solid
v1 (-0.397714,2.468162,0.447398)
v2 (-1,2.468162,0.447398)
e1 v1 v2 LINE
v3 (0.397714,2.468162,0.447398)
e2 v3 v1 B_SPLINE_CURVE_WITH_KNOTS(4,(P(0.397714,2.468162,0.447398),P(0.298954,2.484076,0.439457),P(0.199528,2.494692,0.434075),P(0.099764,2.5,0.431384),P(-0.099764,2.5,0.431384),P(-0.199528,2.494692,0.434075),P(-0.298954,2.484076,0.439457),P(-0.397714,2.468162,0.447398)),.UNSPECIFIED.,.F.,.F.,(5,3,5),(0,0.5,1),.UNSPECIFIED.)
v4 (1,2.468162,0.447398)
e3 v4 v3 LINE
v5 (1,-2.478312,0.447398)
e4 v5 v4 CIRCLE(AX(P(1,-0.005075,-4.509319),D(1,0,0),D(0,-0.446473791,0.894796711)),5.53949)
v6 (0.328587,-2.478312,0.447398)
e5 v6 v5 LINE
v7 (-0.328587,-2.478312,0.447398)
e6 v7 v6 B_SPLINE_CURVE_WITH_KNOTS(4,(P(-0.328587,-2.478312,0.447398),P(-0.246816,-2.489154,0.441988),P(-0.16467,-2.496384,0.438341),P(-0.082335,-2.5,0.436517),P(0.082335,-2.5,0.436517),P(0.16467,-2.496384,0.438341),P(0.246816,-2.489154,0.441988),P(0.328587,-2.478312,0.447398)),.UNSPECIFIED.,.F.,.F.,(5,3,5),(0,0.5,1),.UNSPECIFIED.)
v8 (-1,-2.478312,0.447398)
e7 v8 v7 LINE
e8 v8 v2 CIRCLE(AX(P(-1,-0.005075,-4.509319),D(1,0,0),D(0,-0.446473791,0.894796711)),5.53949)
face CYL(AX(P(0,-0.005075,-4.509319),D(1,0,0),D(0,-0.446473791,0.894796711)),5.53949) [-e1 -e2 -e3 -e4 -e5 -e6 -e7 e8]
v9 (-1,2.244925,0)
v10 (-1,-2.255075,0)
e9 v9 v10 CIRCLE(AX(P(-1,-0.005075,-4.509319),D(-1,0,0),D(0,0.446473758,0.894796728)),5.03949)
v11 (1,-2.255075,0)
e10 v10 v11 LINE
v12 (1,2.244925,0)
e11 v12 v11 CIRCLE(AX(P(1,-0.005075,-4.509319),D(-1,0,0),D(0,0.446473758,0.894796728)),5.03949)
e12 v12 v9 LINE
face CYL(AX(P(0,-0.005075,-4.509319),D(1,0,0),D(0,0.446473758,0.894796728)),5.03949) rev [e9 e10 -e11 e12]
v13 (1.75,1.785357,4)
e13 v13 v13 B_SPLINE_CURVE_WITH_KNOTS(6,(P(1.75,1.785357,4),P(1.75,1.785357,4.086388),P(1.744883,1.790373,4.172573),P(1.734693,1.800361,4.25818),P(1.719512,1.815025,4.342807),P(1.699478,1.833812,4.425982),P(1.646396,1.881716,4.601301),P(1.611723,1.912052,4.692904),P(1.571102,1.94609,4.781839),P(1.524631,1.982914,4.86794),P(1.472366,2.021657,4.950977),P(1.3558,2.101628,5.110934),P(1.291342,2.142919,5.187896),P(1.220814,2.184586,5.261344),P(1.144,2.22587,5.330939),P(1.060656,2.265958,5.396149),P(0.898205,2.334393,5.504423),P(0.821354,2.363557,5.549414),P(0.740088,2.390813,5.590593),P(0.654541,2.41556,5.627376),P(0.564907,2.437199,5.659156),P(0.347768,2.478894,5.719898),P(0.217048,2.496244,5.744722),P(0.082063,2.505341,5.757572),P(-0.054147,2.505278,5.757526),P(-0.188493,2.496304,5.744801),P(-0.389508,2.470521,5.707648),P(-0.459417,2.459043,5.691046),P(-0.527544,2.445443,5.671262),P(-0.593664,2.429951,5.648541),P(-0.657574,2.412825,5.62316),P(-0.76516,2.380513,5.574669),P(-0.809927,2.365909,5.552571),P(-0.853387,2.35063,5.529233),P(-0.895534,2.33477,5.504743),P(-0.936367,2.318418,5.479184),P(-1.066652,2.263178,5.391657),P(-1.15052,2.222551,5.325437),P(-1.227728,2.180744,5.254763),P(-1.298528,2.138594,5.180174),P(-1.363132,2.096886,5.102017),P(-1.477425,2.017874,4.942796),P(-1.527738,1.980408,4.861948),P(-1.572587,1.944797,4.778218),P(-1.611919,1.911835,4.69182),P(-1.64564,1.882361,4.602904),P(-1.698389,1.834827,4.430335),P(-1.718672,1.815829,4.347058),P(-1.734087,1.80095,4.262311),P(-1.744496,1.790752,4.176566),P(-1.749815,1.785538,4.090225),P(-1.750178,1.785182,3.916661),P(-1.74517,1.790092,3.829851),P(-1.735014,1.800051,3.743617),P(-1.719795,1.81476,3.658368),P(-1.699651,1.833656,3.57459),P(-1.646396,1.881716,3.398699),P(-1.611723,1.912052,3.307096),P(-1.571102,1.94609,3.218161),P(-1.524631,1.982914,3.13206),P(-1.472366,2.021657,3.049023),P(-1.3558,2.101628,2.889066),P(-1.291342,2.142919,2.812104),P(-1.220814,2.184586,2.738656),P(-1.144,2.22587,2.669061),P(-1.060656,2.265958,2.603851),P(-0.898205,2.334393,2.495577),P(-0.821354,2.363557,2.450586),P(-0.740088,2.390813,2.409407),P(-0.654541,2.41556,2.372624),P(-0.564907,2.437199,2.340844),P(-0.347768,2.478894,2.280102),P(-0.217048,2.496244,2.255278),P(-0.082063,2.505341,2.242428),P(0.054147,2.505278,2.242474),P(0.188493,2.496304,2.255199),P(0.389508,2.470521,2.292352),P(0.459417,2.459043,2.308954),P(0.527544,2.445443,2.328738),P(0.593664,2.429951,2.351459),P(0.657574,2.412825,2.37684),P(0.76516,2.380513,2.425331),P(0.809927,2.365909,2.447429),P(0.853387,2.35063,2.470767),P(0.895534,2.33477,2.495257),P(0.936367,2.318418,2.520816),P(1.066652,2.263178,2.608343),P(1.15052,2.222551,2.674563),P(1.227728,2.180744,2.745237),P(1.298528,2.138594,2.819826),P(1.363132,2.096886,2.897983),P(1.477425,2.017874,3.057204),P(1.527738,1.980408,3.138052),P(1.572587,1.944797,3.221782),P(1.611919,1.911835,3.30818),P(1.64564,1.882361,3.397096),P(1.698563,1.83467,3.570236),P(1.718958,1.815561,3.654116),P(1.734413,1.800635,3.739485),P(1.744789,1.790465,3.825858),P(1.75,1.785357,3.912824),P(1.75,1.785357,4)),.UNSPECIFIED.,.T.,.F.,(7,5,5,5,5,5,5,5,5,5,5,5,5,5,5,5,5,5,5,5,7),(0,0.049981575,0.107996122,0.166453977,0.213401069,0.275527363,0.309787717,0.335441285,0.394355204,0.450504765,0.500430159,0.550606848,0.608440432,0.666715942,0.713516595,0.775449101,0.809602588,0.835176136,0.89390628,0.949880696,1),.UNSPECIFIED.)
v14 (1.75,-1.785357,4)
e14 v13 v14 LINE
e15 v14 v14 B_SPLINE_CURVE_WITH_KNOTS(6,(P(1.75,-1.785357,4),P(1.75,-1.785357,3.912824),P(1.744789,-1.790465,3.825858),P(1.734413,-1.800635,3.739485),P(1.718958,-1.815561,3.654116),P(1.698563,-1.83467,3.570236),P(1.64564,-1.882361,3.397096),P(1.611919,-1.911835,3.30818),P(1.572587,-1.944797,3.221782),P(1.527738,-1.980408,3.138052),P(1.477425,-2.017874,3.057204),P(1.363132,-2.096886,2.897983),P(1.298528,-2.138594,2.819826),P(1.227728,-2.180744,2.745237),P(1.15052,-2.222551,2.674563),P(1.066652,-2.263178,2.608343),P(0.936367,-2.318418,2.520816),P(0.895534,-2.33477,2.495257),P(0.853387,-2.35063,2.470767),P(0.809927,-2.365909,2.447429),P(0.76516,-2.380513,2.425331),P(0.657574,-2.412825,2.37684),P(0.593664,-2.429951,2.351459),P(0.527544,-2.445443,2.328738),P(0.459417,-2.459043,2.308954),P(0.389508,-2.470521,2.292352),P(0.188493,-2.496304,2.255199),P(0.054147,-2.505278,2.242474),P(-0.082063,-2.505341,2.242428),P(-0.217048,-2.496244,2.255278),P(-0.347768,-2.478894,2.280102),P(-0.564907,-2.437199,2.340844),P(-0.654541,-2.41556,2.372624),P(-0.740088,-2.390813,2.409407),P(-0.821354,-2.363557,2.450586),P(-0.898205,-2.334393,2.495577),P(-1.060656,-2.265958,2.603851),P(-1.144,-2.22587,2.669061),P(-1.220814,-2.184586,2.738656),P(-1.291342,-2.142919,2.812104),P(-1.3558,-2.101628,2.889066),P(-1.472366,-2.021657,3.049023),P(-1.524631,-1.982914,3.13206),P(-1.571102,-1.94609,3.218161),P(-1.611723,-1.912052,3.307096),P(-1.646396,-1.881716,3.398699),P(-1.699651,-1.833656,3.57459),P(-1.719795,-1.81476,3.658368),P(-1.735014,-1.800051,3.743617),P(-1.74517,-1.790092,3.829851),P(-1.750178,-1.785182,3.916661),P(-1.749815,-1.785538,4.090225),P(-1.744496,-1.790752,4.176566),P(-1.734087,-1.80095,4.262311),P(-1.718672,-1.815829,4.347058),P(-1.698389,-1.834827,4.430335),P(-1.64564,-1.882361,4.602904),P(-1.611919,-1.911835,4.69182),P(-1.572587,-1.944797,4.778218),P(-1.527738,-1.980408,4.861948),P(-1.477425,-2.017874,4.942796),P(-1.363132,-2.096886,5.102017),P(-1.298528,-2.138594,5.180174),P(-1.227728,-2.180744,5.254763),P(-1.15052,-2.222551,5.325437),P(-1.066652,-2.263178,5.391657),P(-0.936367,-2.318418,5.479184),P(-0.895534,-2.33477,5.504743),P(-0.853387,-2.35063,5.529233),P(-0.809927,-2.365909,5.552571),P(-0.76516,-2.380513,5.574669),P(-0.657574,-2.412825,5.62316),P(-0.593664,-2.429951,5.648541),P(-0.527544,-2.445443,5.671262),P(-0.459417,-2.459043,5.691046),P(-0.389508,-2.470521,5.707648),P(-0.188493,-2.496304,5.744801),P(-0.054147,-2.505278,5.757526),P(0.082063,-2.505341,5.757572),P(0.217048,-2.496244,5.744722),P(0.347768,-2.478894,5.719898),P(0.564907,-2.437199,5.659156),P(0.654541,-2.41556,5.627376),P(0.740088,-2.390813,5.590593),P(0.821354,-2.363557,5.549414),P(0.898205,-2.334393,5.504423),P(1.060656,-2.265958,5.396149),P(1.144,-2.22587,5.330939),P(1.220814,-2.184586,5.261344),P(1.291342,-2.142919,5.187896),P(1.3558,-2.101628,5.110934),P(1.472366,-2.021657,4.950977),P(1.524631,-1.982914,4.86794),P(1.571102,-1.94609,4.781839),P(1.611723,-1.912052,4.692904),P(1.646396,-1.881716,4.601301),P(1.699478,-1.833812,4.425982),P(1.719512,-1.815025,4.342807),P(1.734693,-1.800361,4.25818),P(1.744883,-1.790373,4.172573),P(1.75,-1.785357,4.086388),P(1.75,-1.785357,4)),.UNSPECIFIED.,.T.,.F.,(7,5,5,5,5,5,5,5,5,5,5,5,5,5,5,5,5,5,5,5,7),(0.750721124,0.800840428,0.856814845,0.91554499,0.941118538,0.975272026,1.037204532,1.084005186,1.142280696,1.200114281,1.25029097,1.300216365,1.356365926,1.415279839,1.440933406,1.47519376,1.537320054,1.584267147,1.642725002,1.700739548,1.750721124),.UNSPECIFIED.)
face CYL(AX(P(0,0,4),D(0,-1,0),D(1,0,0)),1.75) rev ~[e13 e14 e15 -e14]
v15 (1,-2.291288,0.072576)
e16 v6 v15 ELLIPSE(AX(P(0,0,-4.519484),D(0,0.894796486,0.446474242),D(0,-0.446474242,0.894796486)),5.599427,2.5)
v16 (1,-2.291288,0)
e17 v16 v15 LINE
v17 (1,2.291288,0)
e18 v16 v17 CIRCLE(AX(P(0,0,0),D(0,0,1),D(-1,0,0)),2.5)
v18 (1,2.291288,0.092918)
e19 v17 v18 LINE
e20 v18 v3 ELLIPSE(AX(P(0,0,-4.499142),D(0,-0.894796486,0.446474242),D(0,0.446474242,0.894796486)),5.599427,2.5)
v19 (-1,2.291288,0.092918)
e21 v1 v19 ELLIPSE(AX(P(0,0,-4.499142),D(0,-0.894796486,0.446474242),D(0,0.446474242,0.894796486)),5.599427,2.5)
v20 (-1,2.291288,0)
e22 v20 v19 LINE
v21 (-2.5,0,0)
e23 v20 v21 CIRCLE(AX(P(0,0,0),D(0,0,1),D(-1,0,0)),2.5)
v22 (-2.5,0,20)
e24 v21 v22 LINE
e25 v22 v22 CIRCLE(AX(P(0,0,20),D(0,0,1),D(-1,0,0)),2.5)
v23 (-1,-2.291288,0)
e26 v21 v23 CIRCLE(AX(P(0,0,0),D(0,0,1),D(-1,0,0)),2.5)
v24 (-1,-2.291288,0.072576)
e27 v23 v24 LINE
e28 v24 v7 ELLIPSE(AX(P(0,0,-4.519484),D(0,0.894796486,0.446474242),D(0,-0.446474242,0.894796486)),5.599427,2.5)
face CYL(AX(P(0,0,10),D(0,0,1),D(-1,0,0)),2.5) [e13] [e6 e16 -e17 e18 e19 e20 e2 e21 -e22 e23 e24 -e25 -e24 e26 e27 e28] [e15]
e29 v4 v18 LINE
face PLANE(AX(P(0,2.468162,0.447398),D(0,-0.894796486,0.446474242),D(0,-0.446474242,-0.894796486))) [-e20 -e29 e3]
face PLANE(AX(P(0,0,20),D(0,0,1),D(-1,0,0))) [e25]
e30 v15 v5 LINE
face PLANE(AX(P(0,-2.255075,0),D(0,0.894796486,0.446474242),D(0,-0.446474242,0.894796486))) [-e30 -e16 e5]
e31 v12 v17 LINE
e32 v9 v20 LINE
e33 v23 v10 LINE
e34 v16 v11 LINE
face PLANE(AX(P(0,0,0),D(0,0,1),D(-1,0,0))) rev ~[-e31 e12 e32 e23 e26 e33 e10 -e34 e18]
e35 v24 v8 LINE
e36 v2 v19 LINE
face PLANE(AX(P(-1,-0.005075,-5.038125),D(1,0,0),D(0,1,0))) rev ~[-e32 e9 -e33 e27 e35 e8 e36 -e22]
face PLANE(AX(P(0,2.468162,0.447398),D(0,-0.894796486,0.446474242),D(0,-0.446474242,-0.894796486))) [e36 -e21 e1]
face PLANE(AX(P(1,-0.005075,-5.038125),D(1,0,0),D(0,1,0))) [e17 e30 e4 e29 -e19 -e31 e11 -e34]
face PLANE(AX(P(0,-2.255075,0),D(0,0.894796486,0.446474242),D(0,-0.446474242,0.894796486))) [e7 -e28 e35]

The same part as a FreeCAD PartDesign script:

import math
import FreeCAD as App
import Part
import Sketcher
from FreeCAD import Vector
Q = App.Units.Quantity


def add_polygon(sketch, points):
    """Adds a closed chain of lines whose ends are joined by coincident constraints."""
    first, n = sketch.GeometryCount, len(points)
    for a, b in zip(points, points[1:] + points[:1]):
        sketch.addGeometry(Part.LineSegment(App.Vector(*a, 0), App.Vector(*b, 0)), False)
    for i in range(n):
        sketch.addConstraint(Sketcher.Constraint("Coincident", first + i, 2, first + (i + 1) % n, 1))

doc = App.newDocument("Part")
body = doc.addObject("PartDesign::Body", "Body")

sketch1 = body.newObject("Sketcher::SketchObject", "Sketch")
sketch1.AttachmentSupport = (doc.getObject("XZ_Plane"), [""])
sketch1.MapMode = "FlatFace"
add_polygon(sketch1, [(-2.5, 20), (-2.5, 0), (0, 0), (0, 20)])
sketch1.addConstraint(Sketcher.Constraint("Vertical", 0))
sketch1.addConstraint(Sketcher.Constraint("Horizontal", 1))
sketch1.addConstraint(Sketcher.Constraint("Vertical", 2))
sketch1.addConstraint(Sketcher.Constraint("Horizontal", 3))
sketch1.addConstraint(Sketcher.Constraint("Coincident", 1, 2, -1, 1))
sketch1.addConstraint(Sketcher.Constraint("DistanceY", 0, 2, 0, 1, Q("20 mm")))
sketch1.addConstraint(Sketcher.Constraint("DistanceX", 1, 1, 1, 2, Q("2.5 mm")))
revolution = body.newObject("PartDesign::Revolution", "Revolution")
revolution.Profile = sketch1
revolution.ReferenceAxis = (sketch1, ["V_Axis"])
revolution.Angle = 360

sketch2 = body.newObject("Sketcher::SketchObject", "Sketch001")
sketch2.AttachmentSupport = (doc.getObject("XZ_Plane"), [""])
sketch2.MapMode = "FlatFace"
sketch2.addGeometry(Part.Circle(Vector(0, 4, 0), Vector(0, 0, 1), 1.8), False)
sketch2.addConstraint(Sketcher.Constraint("PointOnObject", 0, 3, -2))
sketch2.addConstraint(Sketcher.Constraint("Diameter", 0, Q("3.5 mm")))
sketch2.addConstraint(Sketcher.Constraint("DistanceY", -1, 1, 0, 3, Q("4 mm")))
pocket1 = body.newObject("PartDesign::Pocket", "Pocket")
pocket1.Profile = sketch2
pocket1.Length = 5
pocket1.Midplane = True

sketch3 = body.newObject("Sketcher::SketchObject", "Sketch002")
sketch3.AttachmentSupport = (doc.getObject("YZ_Plane"), [""])
sketch3.MapMode = "FlatFace"
sketch3.addGeometry(Part.ArcOfCircle(Part.Circle(Vector(-0.01, -4.51, 0), Vector(0, 0, 1), 5.04), math.radians(117), math.radians(423)), False)
sketch3.addGeometry(Part.LineSegment(Vector(-2.26, 0, 0), Vector(-2.48, 0.45, 0)), False)
sketch3.addGeometry(Part.ArcOfCircle(Part.Circle(Vector(-0.01, -4.51, 0), Vector(0, 0, 1), 5.54), math.radians(117), math.radians(423)), False)
sketch3.addGeometry(Part.LineSegment(Vector(2.47, 0.45, 0), Vector(2.24, 0, 0)), False)
sketch3.addConstraint(Sketcher.Constraint("Coincident", 0, 1, 1, 1))
sketch3.addConstraint(Sketcher.Constraint("Coincident", 1, 2, 2, 1))
sketch3.addConstraint(Sketcher.Constraint("Coincident", 2, 2, 3, 1))
sketch3.addConstraint(Sketcher.Constraint("Coincident", 3, 2, 0, 2))
sketch3.addConstraint(Sketcher.Constraint("Coincident", 2, 3, 0, 3))
sketch3.addConstraint(Sketcher.Constraint("PointOnObject", 0, 1, -1))
sketch3.addConstraint(Sketcher.Constraint("PointOnObject", 3, 2, -1))
sketch3.addConstraint(Sketcher.Constraint("Horizontal", 1, 2, 2, 2))
sketch3.addConstraint(Sketcher.Constraint("Distance", 1, Q("0.5 mm")))
sketch3.addConstraint(Sketcher.Constraint("DistanceX", 0, 1, 3, 2, Q("4.5 mm")))
sketch3.addConstraint(Sketcher.Constraint("Radius", 0, Q("5.03949 mm")))
sketch3.addConstraint(Sketcher.Constraint("DistanceY", 0, 1, 1, 2, Q("0.447398 mm")))
sketch3.addConstraint(Sketcher.Constraint("DistanceX", 1, 2, -1, 1, Q("2.478312 mm")))
pad1 = body.newObject("PartDesign::Pad", "Pad")
pad1.Profile = sketch3
pad1.Length = 2
pad1.Midplane = True

doc.recompute()
